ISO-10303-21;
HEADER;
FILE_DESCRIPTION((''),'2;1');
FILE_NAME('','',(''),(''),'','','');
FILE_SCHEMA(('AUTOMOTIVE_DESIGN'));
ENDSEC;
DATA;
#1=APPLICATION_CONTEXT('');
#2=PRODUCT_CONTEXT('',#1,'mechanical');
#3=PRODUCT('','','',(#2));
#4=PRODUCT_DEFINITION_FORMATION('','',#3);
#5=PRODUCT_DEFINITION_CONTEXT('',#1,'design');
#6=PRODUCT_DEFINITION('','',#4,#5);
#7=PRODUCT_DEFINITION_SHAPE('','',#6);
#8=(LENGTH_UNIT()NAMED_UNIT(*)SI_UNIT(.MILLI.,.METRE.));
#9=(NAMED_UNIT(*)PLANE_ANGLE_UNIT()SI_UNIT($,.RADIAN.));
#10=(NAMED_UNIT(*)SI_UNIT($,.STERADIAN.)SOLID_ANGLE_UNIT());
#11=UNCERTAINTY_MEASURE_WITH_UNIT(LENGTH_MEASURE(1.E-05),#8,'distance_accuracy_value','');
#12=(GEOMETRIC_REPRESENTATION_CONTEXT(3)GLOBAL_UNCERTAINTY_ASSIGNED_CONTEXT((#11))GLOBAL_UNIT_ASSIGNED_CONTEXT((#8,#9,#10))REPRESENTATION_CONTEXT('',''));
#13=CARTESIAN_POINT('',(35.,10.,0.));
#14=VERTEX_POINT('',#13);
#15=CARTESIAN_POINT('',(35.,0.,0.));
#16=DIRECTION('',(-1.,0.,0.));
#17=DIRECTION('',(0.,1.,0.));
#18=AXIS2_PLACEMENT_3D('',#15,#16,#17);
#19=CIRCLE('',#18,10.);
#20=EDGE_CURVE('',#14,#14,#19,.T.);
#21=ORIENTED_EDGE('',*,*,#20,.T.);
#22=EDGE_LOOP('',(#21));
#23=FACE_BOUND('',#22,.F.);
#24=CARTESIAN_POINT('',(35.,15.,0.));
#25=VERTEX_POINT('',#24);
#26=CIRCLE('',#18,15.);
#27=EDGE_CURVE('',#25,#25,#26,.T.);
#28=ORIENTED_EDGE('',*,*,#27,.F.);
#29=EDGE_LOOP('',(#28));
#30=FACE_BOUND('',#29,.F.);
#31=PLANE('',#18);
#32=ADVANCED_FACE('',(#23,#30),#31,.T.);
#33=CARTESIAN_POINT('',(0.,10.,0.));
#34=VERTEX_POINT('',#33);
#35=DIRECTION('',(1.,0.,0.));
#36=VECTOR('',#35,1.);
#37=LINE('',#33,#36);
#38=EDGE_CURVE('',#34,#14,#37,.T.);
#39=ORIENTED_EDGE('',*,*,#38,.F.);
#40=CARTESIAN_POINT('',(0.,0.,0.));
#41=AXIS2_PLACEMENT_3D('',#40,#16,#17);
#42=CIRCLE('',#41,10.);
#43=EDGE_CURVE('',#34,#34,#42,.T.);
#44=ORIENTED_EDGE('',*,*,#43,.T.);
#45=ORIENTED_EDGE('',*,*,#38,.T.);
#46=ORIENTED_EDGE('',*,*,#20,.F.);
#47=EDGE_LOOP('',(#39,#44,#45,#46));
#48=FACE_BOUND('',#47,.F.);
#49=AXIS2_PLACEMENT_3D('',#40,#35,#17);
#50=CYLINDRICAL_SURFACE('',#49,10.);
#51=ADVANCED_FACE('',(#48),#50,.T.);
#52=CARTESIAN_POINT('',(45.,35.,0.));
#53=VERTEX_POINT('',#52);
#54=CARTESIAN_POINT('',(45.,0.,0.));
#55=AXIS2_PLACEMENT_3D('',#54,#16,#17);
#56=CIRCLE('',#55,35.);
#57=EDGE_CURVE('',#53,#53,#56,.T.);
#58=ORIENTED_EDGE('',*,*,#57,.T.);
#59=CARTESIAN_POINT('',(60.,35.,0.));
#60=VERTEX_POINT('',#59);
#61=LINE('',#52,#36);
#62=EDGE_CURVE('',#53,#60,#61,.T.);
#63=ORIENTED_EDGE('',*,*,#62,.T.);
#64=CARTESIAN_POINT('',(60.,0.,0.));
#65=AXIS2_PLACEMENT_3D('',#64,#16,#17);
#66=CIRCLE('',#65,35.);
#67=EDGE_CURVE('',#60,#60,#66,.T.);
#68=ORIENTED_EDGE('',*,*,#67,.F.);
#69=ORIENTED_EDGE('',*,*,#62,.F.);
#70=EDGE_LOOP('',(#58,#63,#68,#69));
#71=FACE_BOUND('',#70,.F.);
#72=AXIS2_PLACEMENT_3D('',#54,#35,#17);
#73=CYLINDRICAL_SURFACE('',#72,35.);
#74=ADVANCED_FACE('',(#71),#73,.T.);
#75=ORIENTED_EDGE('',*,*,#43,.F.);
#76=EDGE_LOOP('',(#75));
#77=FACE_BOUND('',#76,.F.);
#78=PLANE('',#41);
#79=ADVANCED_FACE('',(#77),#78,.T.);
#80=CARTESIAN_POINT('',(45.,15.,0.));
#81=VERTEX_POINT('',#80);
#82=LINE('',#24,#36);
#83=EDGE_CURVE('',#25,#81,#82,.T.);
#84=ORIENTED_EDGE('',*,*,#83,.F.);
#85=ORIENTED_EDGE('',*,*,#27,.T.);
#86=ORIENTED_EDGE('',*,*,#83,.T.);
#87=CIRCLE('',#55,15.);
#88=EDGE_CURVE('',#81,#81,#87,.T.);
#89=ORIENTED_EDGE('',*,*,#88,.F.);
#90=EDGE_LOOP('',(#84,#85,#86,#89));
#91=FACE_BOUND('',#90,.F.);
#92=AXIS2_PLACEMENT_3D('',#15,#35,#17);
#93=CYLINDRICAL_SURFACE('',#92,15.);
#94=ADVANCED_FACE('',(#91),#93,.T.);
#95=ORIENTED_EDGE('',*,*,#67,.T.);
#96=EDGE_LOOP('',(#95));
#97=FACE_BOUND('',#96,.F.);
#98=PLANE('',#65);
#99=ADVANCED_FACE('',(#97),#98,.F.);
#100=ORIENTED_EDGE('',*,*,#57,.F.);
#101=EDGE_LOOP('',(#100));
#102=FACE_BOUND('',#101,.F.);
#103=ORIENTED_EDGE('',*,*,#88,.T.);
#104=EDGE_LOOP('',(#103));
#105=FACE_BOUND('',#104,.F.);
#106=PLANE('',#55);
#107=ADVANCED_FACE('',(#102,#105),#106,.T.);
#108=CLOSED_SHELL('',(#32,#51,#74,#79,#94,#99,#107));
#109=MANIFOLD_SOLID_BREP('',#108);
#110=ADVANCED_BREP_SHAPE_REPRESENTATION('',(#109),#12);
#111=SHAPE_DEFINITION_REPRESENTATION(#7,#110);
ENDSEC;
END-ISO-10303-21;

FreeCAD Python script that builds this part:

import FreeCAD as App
import Part
import Sketcher
Q = App.Units.Quantity


def add_polygon(sketch, points):
    """Adds a closed chain of lines whose ends are joined by coincident constraints."""
    first, n = sketch.GeometryCount, len(points)
    for a, b in zip(points, points[1:] + points[:1]):
        sketch.addGeometry(Part.LineSegment(App.Vector(*a, 0), App.Vector(*b, 0)), False)
    for i in range(n):
        sketch.addConstraint(Sketcher.Constraint("Coincident", first + i, 2, first + (i + 1) % n, 1))

doc = App.newDocument("Part")
body = doc.addObject("PartDesign::Body", "Body")

# Sketch on XY plane
sketch1 = body.newObject("Sketcher::SketchObject", "Sketch")
sketch1.AttachmentSupport = (doc.getObject("XY_Plane"), [""])
sketch1.MapMode = "FlatFace"
add_polygon(sketch1, [(0, 10), (0, 0), (60, 0), (60, 35), (45, 35), (45, 15), (35, 15), (35, 10)])  # lines 0-7
sketch1.addConstraint([
    Sketcher.Constraint("Vertical", 0),
    Sketcher.Constraint("Horizontal", 1),
    Sketcher.Constraint("Vertical", 2),
    Sketcher.Constraint("Horizontal", 3),
    Sketcher.Constraint("Vertical", 4),
    Sketcher.Constraint("Horizontal", 5),
    Sketcher.Constraint("Vertical", 6),
    Sketcher.Constraint("Horizontal", 7),
    Sketcher.Constraint("Coincident", 0, 2, -1, 1),
    Sketcher.Constraint("Equal", 5, 0),
    Sketcher.Constraint("Equal", 7, 2),
    Sketcher.Constraint("DistanceX", 3, 2, 3, 1, Q("15 mm")),
    Sketcher.Constraint("DistanceX", 5, 2, 5, 1, Q("10 mm")),
    Sketcher.Constraint("DistanceX", 7, 2, 7, 1, Q("35 mm")),
    Sketcher.Constraint("DistanceY", 4, 2, 4, 1, Q("20 mm")),
])
revolution = body.newObject("PartDesign::Revolution", "Revolution")
revolution.Profile = sketch1
revolution.ReferenceAxis = (sketch1, ["H_Axis"])
revolution.Angle = 360

doc.recompute()
